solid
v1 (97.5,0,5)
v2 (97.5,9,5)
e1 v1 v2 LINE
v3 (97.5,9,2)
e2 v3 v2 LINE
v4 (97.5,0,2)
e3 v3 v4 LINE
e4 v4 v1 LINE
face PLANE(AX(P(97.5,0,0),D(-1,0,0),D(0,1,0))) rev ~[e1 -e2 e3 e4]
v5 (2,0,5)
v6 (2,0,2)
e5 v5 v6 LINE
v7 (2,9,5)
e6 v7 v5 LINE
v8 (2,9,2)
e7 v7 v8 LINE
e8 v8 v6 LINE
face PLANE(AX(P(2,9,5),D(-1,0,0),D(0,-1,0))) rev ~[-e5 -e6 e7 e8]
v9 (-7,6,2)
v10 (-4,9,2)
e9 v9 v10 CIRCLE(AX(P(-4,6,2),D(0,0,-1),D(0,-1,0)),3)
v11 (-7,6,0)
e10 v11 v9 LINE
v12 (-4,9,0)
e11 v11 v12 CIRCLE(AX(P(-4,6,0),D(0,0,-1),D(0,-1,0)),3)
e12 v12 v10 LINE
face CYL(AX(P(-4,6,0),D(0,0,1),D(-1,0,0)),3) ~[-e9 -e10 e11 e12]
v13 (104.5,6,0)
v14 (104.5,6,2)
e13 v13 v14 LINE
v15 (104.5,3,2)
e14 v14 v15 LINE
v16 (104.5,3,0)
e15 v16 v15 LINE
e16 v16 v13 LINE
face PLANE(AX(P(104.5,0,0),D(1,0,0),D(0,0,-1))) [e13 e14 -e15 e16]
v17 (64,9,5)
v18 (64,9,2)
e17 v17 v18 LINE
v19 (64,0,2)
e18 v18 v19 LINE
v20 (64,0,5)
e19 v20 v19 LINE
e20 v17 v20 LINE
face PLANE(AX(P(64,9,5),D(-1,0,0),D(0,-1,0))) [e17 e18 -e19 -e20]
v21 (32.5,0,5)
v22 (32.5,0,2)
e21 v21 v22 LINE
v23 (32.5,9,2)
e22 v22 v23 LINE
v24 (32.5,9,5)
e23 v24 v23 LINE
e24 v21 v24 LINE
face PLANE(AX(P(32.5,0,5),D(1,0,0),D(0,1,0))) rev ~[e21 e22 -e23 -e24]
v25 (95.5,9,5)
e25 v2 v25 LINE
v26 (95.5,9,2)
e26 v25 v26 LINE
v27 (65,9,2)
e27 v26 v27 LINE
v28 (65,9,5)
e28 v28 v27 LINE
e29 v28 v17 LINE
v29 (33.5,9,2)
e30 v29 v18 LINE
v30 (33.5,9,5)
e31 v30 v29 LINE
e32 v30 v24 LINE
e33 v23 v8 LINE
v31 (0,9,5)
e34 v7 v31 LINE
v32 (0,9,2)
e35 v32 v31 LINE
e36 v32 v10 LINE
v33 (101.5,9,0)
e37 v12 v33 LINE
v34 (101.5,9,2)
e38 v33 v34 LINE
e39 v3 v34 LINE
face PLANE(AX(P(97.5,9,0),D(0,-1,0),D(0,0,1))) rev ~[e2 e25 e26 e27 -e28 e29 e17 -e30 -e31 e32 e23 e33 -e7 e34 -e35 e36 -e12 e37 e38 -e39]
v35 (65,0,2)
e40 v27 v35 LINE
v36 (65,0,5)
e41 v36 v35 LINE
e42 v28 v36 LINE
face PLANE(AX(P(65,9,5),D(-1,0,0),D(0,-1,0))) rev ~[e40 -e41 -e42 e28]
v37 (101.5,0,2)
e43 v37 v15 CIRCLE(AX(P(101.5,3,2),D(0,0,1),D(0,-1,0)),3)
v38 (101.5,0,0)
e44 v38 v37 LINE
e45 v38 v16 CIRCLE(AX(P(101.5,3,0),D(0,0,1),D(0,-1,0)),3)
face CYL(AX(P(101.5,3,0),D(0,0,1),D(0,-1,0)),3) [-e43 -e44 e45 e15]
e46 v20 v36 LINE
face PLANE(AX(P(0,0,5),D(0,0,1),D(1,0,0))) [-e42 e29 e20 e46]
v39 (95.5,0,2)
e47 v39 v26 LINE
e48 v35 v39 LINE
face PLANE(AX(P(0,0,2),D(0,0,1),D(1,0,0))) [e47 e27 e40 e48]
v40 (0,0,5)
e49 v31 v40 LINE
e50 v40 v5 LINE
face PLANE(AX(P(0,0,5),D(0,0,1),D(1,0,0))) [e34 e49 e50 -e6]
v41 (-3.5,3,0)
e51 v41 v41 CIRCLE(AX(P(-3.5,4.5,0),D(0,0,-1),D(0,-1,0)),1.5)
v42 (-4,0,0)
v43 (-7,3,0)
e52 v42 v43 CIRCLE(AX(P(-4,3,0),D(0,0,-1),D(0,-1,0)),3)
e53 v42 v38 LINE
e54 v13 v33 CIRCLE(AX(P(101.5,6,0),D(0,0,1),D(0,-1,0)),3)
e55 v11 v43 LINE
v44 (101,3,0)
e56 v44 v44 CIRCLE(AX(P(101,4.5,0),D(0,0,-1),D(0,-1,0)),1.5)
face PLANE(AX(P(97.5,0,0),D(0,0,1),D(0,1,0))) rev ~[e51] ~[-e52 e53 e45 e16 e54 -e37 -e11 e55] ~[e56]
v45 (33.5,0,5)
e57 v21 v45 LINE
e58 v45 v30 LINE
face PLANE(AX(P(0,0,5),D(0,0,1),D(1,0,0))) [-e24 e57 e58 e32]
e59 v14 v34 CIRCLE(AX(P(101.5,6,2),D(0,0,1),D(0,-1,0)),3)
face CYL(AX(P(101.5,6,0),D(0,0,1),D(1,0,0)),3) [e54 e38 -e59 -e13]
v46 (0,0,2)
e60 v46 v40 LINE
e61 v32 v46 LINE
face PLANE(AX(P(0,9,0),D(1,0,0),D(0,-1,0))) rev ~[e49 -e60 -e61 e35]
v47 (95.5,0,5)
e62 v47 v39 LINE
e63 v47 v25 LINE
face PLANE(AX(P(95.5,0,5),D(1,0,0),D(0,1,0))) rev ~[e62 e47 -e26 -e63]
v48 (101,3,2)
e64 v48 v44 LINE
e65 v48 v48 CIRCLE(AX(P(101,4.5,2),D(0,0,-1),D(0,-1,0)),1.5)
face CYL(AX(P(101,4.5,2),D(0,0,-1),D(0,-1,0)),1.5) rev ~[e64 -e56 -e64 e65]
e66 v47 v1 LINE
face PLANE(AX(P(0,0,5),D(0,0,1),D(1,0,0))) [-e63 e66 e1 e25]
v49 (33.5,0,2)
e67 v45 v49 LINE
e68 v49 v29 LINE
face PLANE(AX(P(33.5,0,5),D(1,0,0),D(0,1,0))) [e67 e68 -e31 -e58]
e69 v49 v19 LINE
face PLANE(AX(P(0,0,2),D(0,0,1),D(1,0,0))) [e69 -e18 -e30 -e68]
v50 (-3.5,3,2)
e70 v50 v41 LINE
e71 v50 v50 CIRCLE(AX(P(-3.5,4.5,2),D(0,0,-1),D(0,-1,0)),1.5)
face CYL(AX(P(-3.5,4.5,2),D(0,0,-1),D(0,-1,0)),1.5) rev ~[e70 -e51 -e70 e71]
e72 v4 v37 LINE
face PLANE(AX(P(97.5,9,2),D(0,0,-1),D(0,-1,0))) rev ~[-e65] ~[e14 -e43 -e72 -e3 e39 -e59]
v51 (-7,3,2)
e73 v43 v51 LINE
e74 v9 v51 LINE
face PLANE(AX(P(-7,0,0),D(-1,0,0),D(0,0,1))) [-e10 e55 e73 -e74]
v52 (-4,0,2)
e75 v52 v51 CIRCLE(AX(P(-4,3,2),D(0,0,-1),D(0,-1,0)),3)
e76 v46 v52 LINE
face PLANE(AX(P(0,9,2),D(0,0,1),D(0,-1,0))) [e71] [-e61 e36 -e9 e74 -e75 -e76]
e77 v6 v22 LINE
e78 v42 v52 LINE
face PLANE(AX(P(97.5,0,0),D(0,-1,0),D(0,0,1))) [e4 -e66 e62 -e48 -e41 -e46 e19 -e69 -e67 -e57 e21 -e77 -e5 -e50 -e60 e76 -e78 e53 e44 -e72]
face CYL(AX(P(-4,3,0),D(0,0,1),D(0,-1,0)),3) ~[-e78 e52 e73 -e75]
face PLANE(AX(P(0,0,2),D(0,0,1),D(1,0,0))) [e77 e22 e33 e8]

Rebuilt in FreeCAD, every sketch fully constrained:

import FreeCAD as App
import Part
import Sketcher


def edges_at(feature, points):
    """Names of the edges that pass closest to the given points."""
    edges = feature.Shape.Edges
    near = lambda p: min(range(len(edges)), key=lambda i: edges[i].distToShape(Part.Vertex(*p))[0])
    return sorted({f"Edge{near(p) + 1}" for p in points})

doc = App.newDocument("Part")
body = doc.addObject("PartDesign::Body", "Body")

# Sketch on XY plane
sketch1 = doc.addObject("Sketcher::SketchObject", "Sketch")
body.addObject(sketch1)
sketch1.AttachmentSupport = (doc.XY_Plane, [""])
sketch1.MapMode = "FlatFace"
sketch1.addGeometry([
    Part.LineSegment(App.Vector(0, 9, 0), App.Vector(0, 0, 0)),
    Part.LineSegment(App.Vector(0, 0, 0), App.Vector(98, 0, 0)),
    Part.LineSegment(App.Vector(98, 0, 0), App.Vector(98, 9, 0)),
    Part.LineSegment(App.Vector(98, 9, 0), App.Vector(0, 9, 0)),
], False)
sketch1.addConstraint([
    Sketcher.Constraint("Coincident", 0, 2, 1, 1),
    Sketcher.Constraint("Coincident", 1, 2, 2, 1),
    Sketcher.Constraint("Coincident", 2, 2, 3, 1),
    Sketcher.Constraint("Coincident", 3, 2, 0, 1),
    Sketcher.Constraint("Vertical", 0),
    Sketcher.Constraint("Horizontal", 1),
    Sketcher.Constraint("Vertical", 2),
    Sketcher.Constraint("Horizontal", 3),
    Sketcher.Constraint("Coincident", 0, 2, -1, 1),
    Sketcher.Constraint("DistanceY", 0, 2, 0, 1, 9.0),
    Sketcher.Constraint("DistanceX", 1, 1, 1, 2, 97.5),
])
pad1 = doc.addObject("PartDesign::Pad", "Pad")
body.addObject(pad1)
pad1.Profile = sketch1
pad1.Length = 5

# Sketch on XY plane
sketch2 = doc.addObject("Sketcher::SketchObject", "Sketch001")
body.addObject(sketch2)
sketch2.AttachmentSupport = (doc.XY_Plane, [""])
sketch2.MapMode = "FlatFace"
sketch2.AttachmentOffset = App.Placement(App.Vector(0, 0, 5), App.Rotation())
sketch2.addGeometry([
    Part.LineSegment(App.Vector(2, 9, 0), App.Vector(2, 0, 0)),  # 0
    Part.LineSegment(App.Vector(2, 0, 0), App.Vector(32, 0, 0)),  # 1
    Part.LineSegment(App.Vector(32, 0, 0), App.Vector(32, 9, 0)),  # 2
    Part.LineSegment(App.Vector(32, 9, 0), App.Vector(2, 9, 0)),  # 3
    Part.LineSegment(App.Vector(34, 9, 0), App.Vector(34, 0, 0)),  # 4
    Part.LineSegment(App.Vector(34, 0, 0), App.Vector(64, 0, 0)),  # 5
    Part.LineSegment(App.Vector(64, 0, 0), App.Vector(64, 9, 0)),  # 6
    Part.LineSegment(App.Vector(64, 9, 0), App.Vector(34, 9, 0)),  # 7
    Part.LineSegment(App.Vector(65, 9, 0), App.Vector(65, 0, 0)),  # 8
    Part.LineSegment(App.Vector(65, 0, 0), App.Vector(96, 0, 0)),  # 9
    Part.LineSegment(App.Vector(96, 0, 0), App.Vector(96, 9, 0)),  # 10
    Part.LineSegment(App.Vector(96, 9, 0), App.Vector(65, 9, 0)),  # 11
], False)
sketch2.addConstraint([
    Sketcher.Constraint("Coincident", 0, 2, 1, 1),
    Sketcher.Constraint("Coincident", 1, 2, 2, 1),
    Sketcher.Constraint("Coincident", 2, 2, 3, 1),
    Sketcher.Constraint("Coincident", 3, 2, 0, 1),
    Sketcher.Constraint("Coincident", 4, 2, 5, 1),
    Sketcher.Constraint("Coincident", 5, 2, 6, 1),
    Sketcher.Constraint("Coincident", 6, 2, 7, 1),
    Sketcher.Constraint("Coincident", 7, 2, 4, 1),
    Sketcher.Constraint("Coincident", 8, 2, 9, 1),
    Sketcher.Constraint("Coincident", 9, 2, 10, 1),
    Sketcher.Constraint("Coincident", 10, 2, 11, 1),
    Sketcher.Constraint("Coincident", 11, 2, 8, 1),
    Sketcher.Constraint("Vertical", 0),
    Sketcher.Constraint("Horizontal", 1),
    Sketcher.Constraint("Vertical", 2),
    Sketcher.Constraint("Horizontal", 3),
    Sketcher.Constraint("Vertical", 4),
    Sketcher.Constraint("Horizontal", 5),
    Sketcher.Constraint("Vertical", 6),
    Sketcher.Constraint("Horizontal", 7),
    Sketcher.Constraint("Vertical", 8),
    Sketcher.Constraint("Horizontal", 9),
    Sketcher.Constraint("Vertical", 10),
    Sketcher.Constraint("Horizontal", 11),
    Sketcher.Constraint("PointOnObject", 0, 2, -1),
    Sketcher.Constraint("PointOnObject", 4, 2, -1),
    Sketcher.Constraint("PointOnObject", 8, 2, -1),
    Sketcher.Constraint("Horizontal", 3, 2, 6, 2),
    Sketcher.Constraint("Horizontal", 7, 2, 10, 2),
    Sketcher.Constraint("Equal", 3, 5),
    Sketcher.Constraint("Equal", 7, 9),
    Sketcher.Constraint("DistanceX", 1, 1, 1, 2, 30.5),
    Sketcher.Constraint("DistanceX", -1, 1, 0, 2, 2.0),
    Sketcher.Constraint("DistanceX", 1, 2, 4, 2, 1.0),
    Sketcher.Constraint("DistanceX", 5, 2, 8, 2, 1.0),
    Sketcher.Constraint("DistanceY", 0, 2, 0, 1, 9.0),
])
pocket1 = doc.addObject("PartDesign::Pocket", "Pocket")
body.addObject(pocket1)
pocket1.Profile = sketch2
pocket1.Length = 3

# Sketch on YZ plane
sketch3 = doc.addObject("Sketcher::SketchObject", "Sketch002")
body.addObject(sketch3)
sketch3.AttachmentSupport = (doc.YZ_Plane, [""])
sketch3.MapMode = "FlatFace"
sketch3.addGeometry([
    Part.LineSegment(App.Vector(9, 2, 0), App.Vector(9, 0, 0)),
    Part.LineSegment(App.Vector(9, 0, 0), App.Vector(0, 0, 0)),
    Part.LineSegment(App.Vector(0, 0, 0), App.Vector(0, 2, 0)),
    Part.LineSegment(App.Vector(0, 2, 0), App.Vector(9, 2, 0)),
], False)
sketch3.addConstraint([
    Sketcher.Constraint("Coincident", 0, 2, 1, 1),
    Sketcher.Constraint("Coincident", 1, 2, 2, 1),
    Sketcher.Constraint("Coincident", 2, 2, 3, 1),
    Sketcher.Constraint("Coincident", 3, 2, 0, 1),
    Sketcher.Constraint("Vertical", 0),
    Sketcher.Constraint("Horizontal", 1),
    Sketcher.Constraint("Vertical", 2),
    Sketcher.Constraint("Horizontal", 3),
    Sketcher.Constraint("Coincident", 1, 2, -1, 1),
    Sketcher.Constraint("DistanceY", 0, 2, 0, 1, 2.0),
    Sketcher.Constraint("DistanceX", 1, 2, 1, 1, 9.0),
])
pad2 = doc.addObject("PartDesign::Pad", "Pad001")
body.addObject(pad2)
pad2.Profile = sketch3
pad2.Length = 7
pad2.Reversed = True

# Sketch on YZ plane
sketch4 = doc.addObject("Sketcher::SketchObject", "Sketch003")
body.addObject(sketch4)
sketch4.AttachmentSupport = (doc.YZ_Plane, [""])
sketch4.MapMode = "FlatFace"
sketch4.AttachmentOffset = App.Placement(App.Vector(0, 0, 97.5), App.Rotation())
sketch4.addGeometry([
    Part.LineSegment(App.Vector(0, 2, 0), App.Vector(0, 0, 0)),
    Part.LineSegment(App.Vector(0, 0, 0), App.Vector(9, 0, 0)),
    Part.LineSegment(App.Vector(9, 0, 0), App.Vector(9, 2, 0)),
    Part.LineSegment(App.Vector(9, 2, 0), App.Vector(0, 2, 0)),
], False)
sketch4.addConstraint([
    Sketcher.Constraint("Coincident", 0, 2, 1, 1),
    Sketcher.Constraint("Coincident", 1, 2, 2, 1),
    Sketcher.Constraint("Coincident", 2, 2, 3, 1),
    Sketcher.Constraint("Coincident", 3, 2, 0, 1),
    Sketcher.Constraint("Vertical", 0),
    Sketcher.Constraint("Horizontal", 1),
    Sketcher.Constraint("Vertical", 2),
    Sketcher.Constraint("Horizontal", 3),
    Sketcher.Constraint("Coincident", 0, 2, -1, 1),
    Sketcher.Constraint("DistanceY", 0, 2, 0, 1, 2.0),
    Sketcher.Constraint("DistanceX", 1, 1, 1, 2, 9.0),
])
pad3 = doc.addObject("PartDesign::Pad", "Pad002")
body.addObject(pad3)
pad3.Profile = sketch4
pad3.Length = 7

# Sketch on XY plane
sketch5 = doc.addObject("Sketcher::SketchObject", "Sketch004")
body.addObject(sketch5)
sketch5.AttachmentSupport = (doc.XY_Plane, [""])
sketch5.MapMode = "FlatFace"
sketch5.AttachmentOffset = App.Placement(App.Vector(0, 0, 2), App.Rotation())
sketch5.addGeometry([
    Part.Circle(App.Vector(-3.5, 4.5, 0), App.Vector(0, 0, 1), 1.5),
    Part.Circle(App.Vector(101, 4.5, 0), App.Vector(0, 0, 1), 1.5),
], False)
sketch5.addConstraint([
    Sketcher.Constraint("Equal", 0, 1),
    Sketcher.Constraint("Horizontal", 0, 3, 1, 3),
    Sketcher.Constraint("Diameter", 0, 3.0),
    Sketcher.Constraint("DistanceX", -1, 1, 1, 3, 101.0),
    Sketcher.Constraint("DistanceX", 0, 3, -1, 1, 3.5),
    Sketcher.Constraint("DistanceY", -1, 1, 0, 3, 4.5),
])
doc.recompute()
hole = doc.addObject("PartDesign::Hole", "Hole")
body.addObject(hole)
hole.Profile = sketch5
hole.ThreadType = "None"
hole.Diameter = 3
hole.DepthType = "ThroughAll"
doc.recompute()

fillet = doc.addObject("PartDesign::Fillet", "Fillet")
body.addObject(fillet)
fillet.Base = (hole, edges_at(hole, [
    (104.5, 0, 1),
    (104.5, 9, 1),
    (-7, 0, 1),
    (-7, 9, 1),
]))
fillet.Radius = 3

doc.recompute()
